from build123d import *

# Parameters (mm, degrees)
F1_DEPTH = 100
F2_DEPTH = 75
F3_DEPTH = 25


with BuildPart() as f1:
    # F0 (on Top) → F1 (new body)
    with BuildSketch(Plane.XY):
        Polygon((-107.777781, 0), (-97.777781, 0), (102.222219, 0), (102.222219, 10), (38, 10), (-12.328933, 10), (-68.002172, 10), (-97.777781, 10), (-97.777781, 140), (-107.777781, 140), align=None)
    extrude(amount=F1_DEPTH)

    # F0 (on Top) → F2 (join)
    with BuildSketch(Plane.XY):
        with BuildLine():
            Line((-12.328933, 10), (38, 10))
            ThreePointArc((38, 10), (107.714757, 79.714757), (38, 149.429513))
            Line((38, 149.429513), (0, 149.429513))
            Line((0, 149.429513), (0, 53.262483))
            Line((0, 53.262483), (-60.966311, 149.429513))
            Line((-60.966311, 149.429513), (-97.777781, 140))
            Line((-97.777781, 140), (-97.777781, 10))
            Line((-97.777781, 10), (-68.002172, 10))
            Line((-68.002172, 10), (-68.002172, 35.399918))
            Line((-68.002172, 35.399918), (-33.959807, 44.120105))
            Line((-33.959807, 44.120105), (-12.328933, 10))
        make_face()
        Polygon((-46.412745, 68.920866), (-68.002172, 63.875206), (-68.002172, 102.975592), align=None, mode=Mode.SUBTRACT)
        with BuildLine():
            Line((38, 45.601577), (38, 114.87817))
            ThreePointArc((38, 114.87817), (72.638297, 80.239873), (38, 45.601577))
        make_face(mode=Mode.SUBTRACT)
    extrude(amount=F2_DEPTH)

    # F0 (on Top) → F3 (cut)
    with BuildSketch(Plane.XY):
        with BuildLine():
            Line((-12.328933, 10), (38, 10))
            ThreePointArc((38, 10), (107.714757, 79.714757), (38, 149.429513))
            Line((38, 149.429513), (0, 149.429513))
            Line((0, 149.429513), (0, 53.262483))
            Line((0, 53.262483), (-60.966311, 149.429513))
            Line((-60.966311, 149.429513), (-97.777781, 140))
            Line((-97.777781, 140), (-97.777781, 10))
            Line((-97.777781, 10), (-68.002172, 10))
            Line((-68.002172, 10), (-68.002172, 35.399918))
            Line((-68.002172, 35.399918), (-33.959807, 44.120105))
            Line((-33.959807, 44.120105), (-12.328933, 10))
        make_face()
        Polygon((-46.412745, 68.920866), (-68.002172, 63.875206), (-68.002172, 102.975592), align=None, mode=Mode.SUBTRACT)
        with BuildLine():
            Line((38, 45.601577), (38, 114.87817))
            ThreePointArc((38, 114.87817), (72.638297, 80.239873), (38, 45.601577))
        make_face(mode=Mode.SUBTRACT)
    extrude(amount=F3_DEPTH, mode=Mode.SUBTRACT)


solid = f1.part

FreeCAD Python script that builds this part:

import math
import FreeCAD as App
import Part
import Sketcher

V = App.Vector

doc = App.newDocument("Part")
body = doc.addObject("PartDesign::Body", "Body")

# Sketch on XY plane
sketch1 = body.newObject("Sketcher::SketchObject", "Sketch")
sketch1.AttachmentSupport = (doc.getObject("XY_Plane"), [""])
sketch1.MapMode = "FlatFace"
sketch1.addGeometry([
    Part.LineSegment(V(-107.777781, 0, 0), V(102.222219, 0, 0)),  # 0
    Part.LineSegment(V(102.222219, 0, 0), V(102.222219, 10, 0)),  # 1
    Part.LineSegment(V(102.222219, 10, 0), V(-97.777781, 10, 0)),  # 2
    Part.LineSegment(V(-97.777781, 10, 0), V(-97.777781, 140, 0)),  # 3
    Part.LineSegment(V(-97.777781, 140, 0), V(-107.777781, 140, 0)),  # 4
    Part.LineSegment(V(-107.777781, 140, 0), V(-107.777781, 0, 0)),  # 5
], False)
sketch1.addConstraint([
    Sketcher.Constraint("Coincident", 0, 2, 1, 1),
    Sketcher.Constraint("Coincident", 1, 2, 2, 1),
    Sketcher.Constraint("Coincident", 2, 2, 3, 1),
    Sketcher.Constraint("Coincident", 3, 2, 4, 1),
    Sketcher.Constraint("Coincident", 4, 2, 5, 1),
    Sketcher.Constraint("Coincident", 5, 2, 0, 1),
    Sketcher.Constraint("Horizontal", 0),
    Sketcher.Constraint("Vertical", 1),
    Sketcher.Constraint("Horizontal", 2),
    Sketcher.Constraint("Vertical", 3),
    Sketcher.Constraint("Horizontal", 4),
    Sketcher.Constraint("Vertical", 5),
    Sketcher.Constraint("PointOnObject", 0, 2, -1),
    Sketcher.Constraint("Equal", 4, 1),
    Sketcher.Constraint("DistanceX", 0, 1, 0, 2, 210.0),
    Sketcher.Constraint("DistanceX", 2, 2, 2, 1, 200.0),
    Sketcher.Constraint("DistanceY", 3, 1, 3, 2, 130.0),
    Sketcher.Constraint("DistanceX", -1, 1, 0, 2, 102.222219),
])
pad1 = body.newObject("PartDesign::Pad", "Pad")
pad1.Profile = sketch1
pad1.Length = 100

# Sketch on XY plane
sketch2 = body.newObject("Sketcher::SketchObject", "Sketch001")
sketch2.AttachmentSupport = (doc.getObject("XY_Plane"), [""])
sketch2.MapMode = "FlatFace"
sketch2.addGeometry([
    Part.LineSegment(V(-12.328933, 10, 0), V(38, 10, 0)),  # 0
    Part.ArcOfCircle(Part.Circle(V(38, 79.714756, 0), V(0, 0, 1), 69.714756), math.radians(-90), math.radians(90)),  # 1
    Part.LineSegment(V(38, 149.429513, 0), V(0, 149.429513, 0)),  # 2
    Part.LineSegment(V(0, 149.429513, 0), V(0, 53.262483, 0)),  # 3
    Part.LineSegment(V(0, 53.262483, 0), V(-60.966311, 149.429513, 0)),  # 4
    Part.LineSegment(V(-60.966311, 149.429513, 0), V(-97.777781, 140, 0)),  # 5
    Part.LineSegment(V(-97.777781, 140, 0), V(-97.777781, 10, 0)),  # 6
    Part.LineSegment(V(-97.777781, 10, 0), V(-68.002172, 10, 0)),  # 7
    Part.LineSegment(V(-68.002172, 10, 0), V(-68.002172, 35.399918, 0)),  # 8
    Part.LineSegment(V(-68.002172, 35.399918, 0), V(-33.959807, 44.120105, 0)),  # 9
    Part.LineSegment(V(-33.959807, 44.120105, 0), V(-12.328933, 10, 0)),  # 10
    Part.LineSegment(V(-68.002172, 102.975592, 0), V(-46.412745, 68.920866, 0)),  # 11
    Part.LineSegment(V(-46.412745, 68.920866, 0), V(-68.002172, 63.875206, 0)),  # 12
    Part.LineSegment(V(-68.002172, 63.875206, 0), V(-68.002172, 102.975592, 0)),  # 13
    Part.ArcOfCircle(Part.Circle(V(38, 80.239874, 0), V(0, 0, 1), 34.638297), math.radians(-90.000001), math.radians(90.000001)),  # 14
    Part.LineSegment(V(38, 45.601577, 0), V(38, 114.87817, 0)),  # 15
], False)
sketch2.addConstraint([
    Sketcher.Constraint("Tangent", 0, 2, 1, 1),
    Sketcher.Constraint("Tangent", 1, 2, 2, 1),
    Sketcher.Constraint("Coincident", 2, 2, 3, 1),
    Sketcher.Constraint("Coincident", 3, 2, 4, 1),
    Sketcher.Constraint("Coincident", 4, 2, 5, 1),
    Sketcher.Constraint("Coincident", 5, 2, 6, 1),
    Sketcher.Constraint("Coincident", 6, 2, 7, 1),
    Sketcher.Constraint("Coincident", 7, 2, 8, 1),
    Sketcher.Constraint("Coincident", 8, 2, 9, 1),
    Sketcher.Constraint("Coincident", 9, 2, 10, 1),
    Sketcher.Constraint("Coincident", 10, 2, 0, 1),
    Sketcher.Constraint("Coincident", 11, 2, 12, 1),
    Sketcher.Constraint("Coincident", 12, 2, 13, 1),
    Sketcher.Constraint("Coincident", 13, 2, 11, 1),
    Sketcher.Constraint("Coincident", 14, 1, 15, 1),
    Sketcher.Constraint("Coincident", 15, 2, 14, 2),
    Sketcher.Constraint("Horizontal", 0),
    Sketcher.Constraint("Horizontal", 2),
    Sketcher.Constraint("Vertical", 3),
    Sketcher.Constraint("Vertical", 6),
    Sketcher.Constraint("Horizontal", 7),
    Sketcher.Constraint("Vertical", 8),
    Sketcher.Constraint("Vertical", 13),
    Sketcher.Constraint("Vertical", 15),
    Sketcher.Constraint("PointOnObject", 2, 2, -2),
    Sketcher.Constraint("Parallel", 5, 9),
    Sketcher.Constraint("Parallel", 4, 10),
    Sketcher.Constraint("Parallel", 10, 11),
    Sketcher.Constraint("Horizontal", 2, 2, 4, 2),
    Sketcher.Constraint("Horizontal", 0, 2, 6, 2),
    Sketcher.Constraint("Vertical", 1, 3, 14, 3),
    Sketcher.Constraint("Vertical", 8, 2, 12, 2),
    Sketcher.Constraint("Vertical", 1, 2, 14, 1),
    Sketcher.Constraint("DistanceX", 2, 2, 2, 1, 38.0),
    Sketcher.Constraint("DistanceY", 6, 2, 6, 1, 130.0),
    Sketcher.Constraint("Distance", 5, 38.000001),
    Sketcher.Constraint("DistanceY", -1, 1, 0, 2, 10.0),
    Sketcher.Constraint("Radius", 1, 69.714756),
    Sketcher.Constraint("Radius", 14, 34.638297),
    Sketcher.Constraint("Distance", 12, 22.171199),
    Sketcher.Constraint("DistanceX", 7, 1, 7, 2, 29.775609),
    Sketcher.Constraint("DistanceY", 3, 2, 3, 1, 96.16703),
    Sketcher.Constraint("DistanceY", 9, 2, 12, 2, 19.755101),
    Sketcher.Constraint("Distance", 9, 35.141489),
    Sketcher.Constraint("DistanceX", 0, 1, 0, 2, 50.328933),
    Sketcher.Constraint("DistanceY", 8, 1, 8, 2, 25.399918),
    Sketcher.Constraint("DistanceY", 13, 1, 13, 2, 39.100386),
    Sketcher.Constraint("DistanceY", -1, 1, 15, 2, 114.87817),
])
pad2 = body.newObject("PartDesign::Pad", "Pad001")
pad2.Profile = sketch2
pad2.Length = 75

# Sketch on XY plane
sketch3 = body.newObject("Sketcher::SketchObject", "Sketch002")
sketch3.AttachmentSupport = (doc.getObject("XY_Plane"), [""])
sketch3.MapMode = "FlatFace"
sketch3.addGeometry([
    Part.LineSegment(V(-12.328933, 10, 0), V(38, 10, 0)),  # 0
    Part.ArcOfCircle(Part.Circle(V(38, 79.714756, 0), V(0, 0, 1), 69.714756), math.radians(-90), math.radians(90)),  # 1
    Part.LineSegment(V(38, 149.429513, 0), V(0, 149.429513, 0)),  # 2
    Part.LineSegment(V(0, 149.429513, 0), V(0, 53.262483, 0)),  # 3
    Part.LineSegment(V(0, 53.262483, 0), V(-60.966311, 149.429513, 0)),  # 4
    Part.LineSegment(V(-60.966311, 149.429513, 0), V(-97.777781, 140, 0)),  # 5
    Part.LineSegment(V(-97.777781, 140, 0), V(-97.777781, 10, 0)),  # 6
    Part.LineSegment(V(-97.777781, 10, 0), V(-68.002172, 10, 0)),  # 7
    Part.LineSegment(V(-68.002172, 10, 0), V(-68.002172, 35.399918, 0)),  # 8
    Part.LineSegment(V(-68.002172, 35.399918, 0), V(-33.959807, 44.120105, 0)),  # 9
    Part.LineSegment(V(-33.959807, 44.120105, 0), V(-12.328933, 10, 0)),  # 10
    Part.LineSegment(V(-68.002172, 102.975592, 0), V(-46.412745, 68.920866, 0)),  # 11
    Part.LineSegment(V(-46.412745, 68.920866, 0), V(-68.002172, 63.875206, 0)),  # 12
    Part.LineSegment(V(-68.002172, 63.875206, 0), V(-68.002172, 102.975592, 0)),  # 13
    Part.ArcOfCircle(Part.Circle(V(38, 80.239874, 0), V(0, 0, 1), 34.638297), math.radians(-90.000001), math.radians(90.000001)),  # 14
    Part.LineSegment(V(38, 45.601577, 0), V(38, 114.87817, 0)),  # 15
], False)
sketch3.addConstraint([
    Sketcher.Constraint("Tangent", 0, 2, 1, 1),
    Sketcher.Constraint("Tangent", 1, 2, 2, 1),
    Sketcher.Constraint("Coincident", 2, 2, 3, 1),
    Sketcher.Constraint("Coincident", 3, 2, 4, 1),
    Sketcher.Constraint("Coincident", 4, 2, 5, 1),
    Sketcher.Constraint("Coincident", 5, 2, 6, 1),
    Sketcher.Constraint("Coincident", 6, 2, 7, 1),
    Sketcher.Constraint("Coincident", 7, 2, 8, 1),
    Sketcher.Constraint("Coincident", 8, 2, 9, 1),
    Sketcher.Constraint("Coincident", 9, 2, 10, 1),
    Sketcher.Constraint("Coincident", 10, 2, 0, 1),
    Sketcher.Constraint("Coincident", 11, 2, 12, 1),
    Sketcher.Constraint("Coincident", 12, 2, 13, 1),
    Sketcher.Constraint("Coincident", 13, 2, 11, 1),
    Sketcher.Constraint("Coincident", 14, 1, 15, 1),
    Sketcher.Constraint("Coincident", 15, 2, 14, 2),
    Sketcher.Constraint("Horizontal", 0),
    Sketcher.Constraint("Horizontal", 2),
    Sketcher.Constraint("Vertical", 3),
    Sketcher.Constraint("Vertical", 6),
    Sketcher.Constraint("Horizontal", 7),
    Sketcher.Constraint("Vertical", 8),
    Sketcher.Constraint("Vertical", 13),
    Sketcher.Constraint("Vertical", 15),
    Sketcher.Constraint("PointOnObject", 2, 2, -2),
    Sketcher.Constraint("Parallel", 5, 9),
    Sketcher.Constraint("Parallel", 4, 10),
    Sketcher.Constraint("Parallel", 10, 11),
    Sketcher.Constraint("Horizontal", 2, 2, 4, 2),
    Sketcher.Constraint("Horizontal", 0, 2, 6, 2),
    Sketcher.Constraint("Vertical", 1, 3, 14, 3),
    Sketcher.Constraint("Vertical", 8, 2, 12, 2),
    Sketcher.Constraint("Vertical", 1, 2, 14, 1),
    Sketcher.Constraint("DistanceX", 2, 2, 2, 1, 38.0),
    Sketcher.Constraint("DistanceY", 6, 2, 6, 1, 130.0),
    Sketcher.Constraint("Distance", 5, 38.000001),
    Sketcher.Constraint("DistanceY", -1, 1, 0, 2, 10.0),
    Sketcher.Constraint("Radius", 1, 69.714756),
    Sketcher.Constraint("Radius", 14, 34.638297),
    Sketcher.Constraint("Distance", 12, 22.171199),
    Sketcher.Constraint("DistanceX", 7, 1, 7, 2, 29.775609),
    Sketcher.Constraint("DistanceY", 3, 2, 3, 1, 96.16703),
    Sketcher.Constraint("DistanceY", 9, 2, 12, 2, 19.755101),
    Sketcher.Constraint("Distance", 9, 35.141489),
    Sketcher.Constraint("DistanceX", 0, 1, 0, 2, 50.328933),
    Sketcher.Constraint("DistanceY", 8, 1, 8, 2, 25.399918),
    Sketcher.Constraint("DistanceY", 13, 1, 13, 2, 39.100386),
    Sketcher.Constraint("DistanceY", -1, 1, 15, 2, 114.87817),
])
pocket1 = body.newObject("PartDesign::Pocket", "Pocket")
pocket1.Profile = sketch3
pocket1.Length = 25
pocket1.Reversed = True

doc.recompute()
